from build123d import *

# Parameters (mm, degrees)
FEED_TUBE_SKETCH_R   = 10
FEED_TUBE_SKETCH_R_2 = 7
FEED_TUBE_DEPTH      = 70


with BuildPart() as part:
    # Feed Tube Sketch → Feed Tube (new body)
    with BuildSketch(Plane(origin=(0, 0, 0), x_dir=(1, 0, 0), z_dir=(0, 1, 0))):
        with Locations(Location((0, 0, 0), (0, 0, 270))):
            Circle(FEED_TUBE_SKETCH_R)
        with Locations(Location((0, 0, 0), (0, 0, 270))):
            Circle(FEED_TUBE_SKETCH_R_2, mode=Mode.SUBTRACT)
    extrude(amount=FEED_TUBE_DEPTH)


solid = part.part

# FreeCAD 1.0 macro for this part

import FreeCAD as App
import Part
import Sketcher
Q = App.Units.Quantity

doc = App.newDocument("Part")
body = doc.addObject("PartDesign::Body", "Body")

# Sketch on XZ plane
sketch1 = body.newObject("Sketcher::SketchObject", "Sketch")
sketch1.AttachmentSupport = (doc.getObject("XZ_Plane"), [""])
sketch1.MapMode = "FlatFace"
sketch1.addGeometry(Part.Circle(App.Vector(0, 0, 0), App.Vector(0, 0, 1), 10), False)
sketch1.addGeometry(Part.Circle(App.Vector(0, 0, 0), App.Vector(0, 0, 1), 7), False)
sketch1.addConstraint(Sketcher.Constraint("Coincident", 0, 3, -1, 1))
sketch1.addConstraint(Sketcher.Constraint("Coincident", 1, 3, -1, 1))
sketch1.addConstraint(Sketcher.Constraint("Diameter", 0, Q("20 mm")))
sketch1.addConstraint(Sketcher.Constraint("Diameter", 1, Q("14 mm")))
pad1 = body.newObject("PartDesign::Pad", "Pad")
pad1.Profile = sketch1
pad1.Length = 70
pad1.Reversed = True

doc.recompute()
